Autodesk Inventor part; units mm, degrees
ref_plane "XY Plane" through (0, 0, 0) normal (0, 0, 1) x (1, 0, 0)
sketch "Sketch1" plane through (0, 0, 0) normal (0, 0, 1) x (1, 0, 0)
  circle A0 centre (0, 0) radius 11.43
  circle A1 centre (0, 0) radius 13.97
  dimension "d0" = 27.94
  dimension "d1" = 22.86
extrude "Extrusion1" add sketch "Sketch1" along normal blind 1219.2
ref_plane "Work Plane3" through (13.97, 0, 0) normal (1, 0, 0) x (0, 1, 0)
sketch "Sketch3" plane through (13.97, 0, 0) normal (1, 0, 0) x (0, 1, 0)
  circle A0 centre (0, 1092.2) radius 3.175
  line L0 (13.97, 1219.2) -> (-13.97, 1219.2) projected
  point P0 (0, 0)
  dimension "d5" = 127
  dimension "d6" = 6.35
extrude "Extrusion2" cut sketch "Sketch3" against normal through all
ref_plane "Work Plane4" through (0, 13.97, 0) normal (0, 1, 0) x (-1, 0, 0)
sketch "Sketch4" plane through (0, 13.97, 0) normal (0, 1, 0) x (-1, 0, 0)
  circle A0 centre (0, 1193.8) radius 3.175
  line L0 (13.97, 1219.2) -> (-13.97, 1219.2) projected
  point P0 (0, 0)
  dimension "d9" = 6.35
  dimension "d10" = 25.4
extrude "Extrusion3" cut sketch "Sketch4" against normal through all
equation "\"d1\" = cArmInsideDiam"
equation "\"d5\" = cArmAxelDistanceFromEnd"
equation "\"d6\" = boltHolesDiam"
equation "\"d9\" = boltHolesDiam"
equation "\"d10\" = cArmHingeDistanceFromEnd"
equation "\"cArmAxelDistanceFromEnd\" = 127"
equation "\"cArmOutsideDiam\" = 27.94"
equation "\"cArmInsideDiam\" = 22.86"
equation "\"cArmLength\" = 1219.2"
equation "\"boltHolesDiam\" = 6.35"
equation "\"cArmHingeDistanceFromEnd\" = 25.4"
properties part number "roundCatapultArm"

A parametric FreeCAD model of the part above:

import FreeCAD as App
import Part
import Sketcher

V = App.Vector
Q = App.Units.Quantity

doc = App.newDocument("Part")
params = doc.addObject("Spreadsheet::Sheet", "Params")
for row, (alias, value) in enumerate([
    ("sketch1_diameter", "1.1 in"),
    ("sketch1_diameter2", "0.9 in"),
    ("pad1_length", "48 in"),
    ("sketch2_diameter", "0.25 in"),
    ("sketch3_diameter", "0.25 in"),
], start=1):
    params.set(f"A{row}", alias)
    params.set(f"B{row}", "=" + value)
    params.setAlias(f"B{row}", alias)

body = doc.addObject("PartDesign::Body", "Body")

# Sketch on XY plane
sketch1 = body.newObject("Sketcher::SketchObject", "Sketch")
sketch1.AttachmentSupport = (doc.getObject("XY_Plane"), [""])
sketch1.MapMode = "FlatFace"
sketch1.addGeometry(Part.Circle(V(0, 0, 0), V(0, 0, 1), 13.97), False)
sketch1.addGeometry(Part.Circle(V(0, 0, 0), V(0, 0, 1), 11.43), False)
sketch1.addConstraint(Sketcher.Constraint("Coincident", 0, 3, -1, 1))
sketch1.addConstraint(Sketcher.Constraint("Coincident", 1, 3, -1, 1))
sketch1.addConstraint(Sketcher.Constraint("Diameter", 0, Q("1.1 in")))
sketch1.addConstraint(Sketcher.Constraint("Diameter", 1, Q("0.9 in")))
sketch1.setExpression("Constraints[2]", "Params.sketch1_diameter")
sketch1.setExpression("Constraints[3]", "Params.sketch1_diameter2")
pad1 = body.newObject("PartDesign::Pad", "Pad")
pad1.Profile = sketch1
pad1.setExpression("Length", "Params.pad1_length")

# Sketch on YZ plane
sketch2 = body.newObject("Sketcher::SketchObject", "Sketch001")
sketch2.AttachmentSupport = (doc.getObject("YZ_Plane"), [""])
sketch2.MapMode = "FlatFace"
sketch2.AttachmentOffset = App.Placement(V(0, 0, 0.55 * 25.4), App.Rotation())
sketch2.addGeometry(Part.Circle(V(0, 1092.2, 0), V(0, 0, 1), 3.175), False)
sketch2.addConstraint(Sketcher.Constraint("PointOnObject", 0, 3, -2))
sketch2.addConstraint(Sketcher.Constraint("Diameter", 0, Q("0.25 in")))
sketch2.addConstraint(Sketcher.Constraint("DistanceY", -1, 1, 0, 3, Q("43 in")))
sketch2.setExpression("Constraints[1]", "Params.sketch2_diameter")
pocket1 = body.newObject("PartDesign::Pocket", "Pocket")
pocket1.Profile = sketch2
pocket1.Type = "ThroughAll"

# Sketch on XZ plane
sketch3 = body.newObject("Sketcher::SketchObject", "Sketch002")
sketch3.AttachmentSupport = (doc.getObject("XZ_Plane"), [""])
sketch3.MapMode = "FlatFace"
sketch3.AttachmentOffset = App.Placement(V(0, 0, -0.55 * 25.4), App.Rotation())
sketch3.addGeometry(Part.Circle(V(0, 1193.8, 0), V(0, 0, 1), 3.175), False)
sketch3.addConstraint(Sketcher.Constraint("PointOnObject", 0, 3, -2))
sketch3.addConstraint(Sketcher.Constraint("Diameter", 0, Q("0.25 in")))
sketch3.addConstraint(Sketcher.Constraint("DistanceY", -1, 1, 0, 3, Q("47 in")))
sketch3.setExpression("Constraints[1]", "Params.sketch3_diameter")
pocket2 = body.newObject("PartDesign::Pocket", "Pocket001")
pocket2.Profile = sketch3
pocket2.Type = "ThroughAll"
pocket2.Reversed = True

doc.recompute()
